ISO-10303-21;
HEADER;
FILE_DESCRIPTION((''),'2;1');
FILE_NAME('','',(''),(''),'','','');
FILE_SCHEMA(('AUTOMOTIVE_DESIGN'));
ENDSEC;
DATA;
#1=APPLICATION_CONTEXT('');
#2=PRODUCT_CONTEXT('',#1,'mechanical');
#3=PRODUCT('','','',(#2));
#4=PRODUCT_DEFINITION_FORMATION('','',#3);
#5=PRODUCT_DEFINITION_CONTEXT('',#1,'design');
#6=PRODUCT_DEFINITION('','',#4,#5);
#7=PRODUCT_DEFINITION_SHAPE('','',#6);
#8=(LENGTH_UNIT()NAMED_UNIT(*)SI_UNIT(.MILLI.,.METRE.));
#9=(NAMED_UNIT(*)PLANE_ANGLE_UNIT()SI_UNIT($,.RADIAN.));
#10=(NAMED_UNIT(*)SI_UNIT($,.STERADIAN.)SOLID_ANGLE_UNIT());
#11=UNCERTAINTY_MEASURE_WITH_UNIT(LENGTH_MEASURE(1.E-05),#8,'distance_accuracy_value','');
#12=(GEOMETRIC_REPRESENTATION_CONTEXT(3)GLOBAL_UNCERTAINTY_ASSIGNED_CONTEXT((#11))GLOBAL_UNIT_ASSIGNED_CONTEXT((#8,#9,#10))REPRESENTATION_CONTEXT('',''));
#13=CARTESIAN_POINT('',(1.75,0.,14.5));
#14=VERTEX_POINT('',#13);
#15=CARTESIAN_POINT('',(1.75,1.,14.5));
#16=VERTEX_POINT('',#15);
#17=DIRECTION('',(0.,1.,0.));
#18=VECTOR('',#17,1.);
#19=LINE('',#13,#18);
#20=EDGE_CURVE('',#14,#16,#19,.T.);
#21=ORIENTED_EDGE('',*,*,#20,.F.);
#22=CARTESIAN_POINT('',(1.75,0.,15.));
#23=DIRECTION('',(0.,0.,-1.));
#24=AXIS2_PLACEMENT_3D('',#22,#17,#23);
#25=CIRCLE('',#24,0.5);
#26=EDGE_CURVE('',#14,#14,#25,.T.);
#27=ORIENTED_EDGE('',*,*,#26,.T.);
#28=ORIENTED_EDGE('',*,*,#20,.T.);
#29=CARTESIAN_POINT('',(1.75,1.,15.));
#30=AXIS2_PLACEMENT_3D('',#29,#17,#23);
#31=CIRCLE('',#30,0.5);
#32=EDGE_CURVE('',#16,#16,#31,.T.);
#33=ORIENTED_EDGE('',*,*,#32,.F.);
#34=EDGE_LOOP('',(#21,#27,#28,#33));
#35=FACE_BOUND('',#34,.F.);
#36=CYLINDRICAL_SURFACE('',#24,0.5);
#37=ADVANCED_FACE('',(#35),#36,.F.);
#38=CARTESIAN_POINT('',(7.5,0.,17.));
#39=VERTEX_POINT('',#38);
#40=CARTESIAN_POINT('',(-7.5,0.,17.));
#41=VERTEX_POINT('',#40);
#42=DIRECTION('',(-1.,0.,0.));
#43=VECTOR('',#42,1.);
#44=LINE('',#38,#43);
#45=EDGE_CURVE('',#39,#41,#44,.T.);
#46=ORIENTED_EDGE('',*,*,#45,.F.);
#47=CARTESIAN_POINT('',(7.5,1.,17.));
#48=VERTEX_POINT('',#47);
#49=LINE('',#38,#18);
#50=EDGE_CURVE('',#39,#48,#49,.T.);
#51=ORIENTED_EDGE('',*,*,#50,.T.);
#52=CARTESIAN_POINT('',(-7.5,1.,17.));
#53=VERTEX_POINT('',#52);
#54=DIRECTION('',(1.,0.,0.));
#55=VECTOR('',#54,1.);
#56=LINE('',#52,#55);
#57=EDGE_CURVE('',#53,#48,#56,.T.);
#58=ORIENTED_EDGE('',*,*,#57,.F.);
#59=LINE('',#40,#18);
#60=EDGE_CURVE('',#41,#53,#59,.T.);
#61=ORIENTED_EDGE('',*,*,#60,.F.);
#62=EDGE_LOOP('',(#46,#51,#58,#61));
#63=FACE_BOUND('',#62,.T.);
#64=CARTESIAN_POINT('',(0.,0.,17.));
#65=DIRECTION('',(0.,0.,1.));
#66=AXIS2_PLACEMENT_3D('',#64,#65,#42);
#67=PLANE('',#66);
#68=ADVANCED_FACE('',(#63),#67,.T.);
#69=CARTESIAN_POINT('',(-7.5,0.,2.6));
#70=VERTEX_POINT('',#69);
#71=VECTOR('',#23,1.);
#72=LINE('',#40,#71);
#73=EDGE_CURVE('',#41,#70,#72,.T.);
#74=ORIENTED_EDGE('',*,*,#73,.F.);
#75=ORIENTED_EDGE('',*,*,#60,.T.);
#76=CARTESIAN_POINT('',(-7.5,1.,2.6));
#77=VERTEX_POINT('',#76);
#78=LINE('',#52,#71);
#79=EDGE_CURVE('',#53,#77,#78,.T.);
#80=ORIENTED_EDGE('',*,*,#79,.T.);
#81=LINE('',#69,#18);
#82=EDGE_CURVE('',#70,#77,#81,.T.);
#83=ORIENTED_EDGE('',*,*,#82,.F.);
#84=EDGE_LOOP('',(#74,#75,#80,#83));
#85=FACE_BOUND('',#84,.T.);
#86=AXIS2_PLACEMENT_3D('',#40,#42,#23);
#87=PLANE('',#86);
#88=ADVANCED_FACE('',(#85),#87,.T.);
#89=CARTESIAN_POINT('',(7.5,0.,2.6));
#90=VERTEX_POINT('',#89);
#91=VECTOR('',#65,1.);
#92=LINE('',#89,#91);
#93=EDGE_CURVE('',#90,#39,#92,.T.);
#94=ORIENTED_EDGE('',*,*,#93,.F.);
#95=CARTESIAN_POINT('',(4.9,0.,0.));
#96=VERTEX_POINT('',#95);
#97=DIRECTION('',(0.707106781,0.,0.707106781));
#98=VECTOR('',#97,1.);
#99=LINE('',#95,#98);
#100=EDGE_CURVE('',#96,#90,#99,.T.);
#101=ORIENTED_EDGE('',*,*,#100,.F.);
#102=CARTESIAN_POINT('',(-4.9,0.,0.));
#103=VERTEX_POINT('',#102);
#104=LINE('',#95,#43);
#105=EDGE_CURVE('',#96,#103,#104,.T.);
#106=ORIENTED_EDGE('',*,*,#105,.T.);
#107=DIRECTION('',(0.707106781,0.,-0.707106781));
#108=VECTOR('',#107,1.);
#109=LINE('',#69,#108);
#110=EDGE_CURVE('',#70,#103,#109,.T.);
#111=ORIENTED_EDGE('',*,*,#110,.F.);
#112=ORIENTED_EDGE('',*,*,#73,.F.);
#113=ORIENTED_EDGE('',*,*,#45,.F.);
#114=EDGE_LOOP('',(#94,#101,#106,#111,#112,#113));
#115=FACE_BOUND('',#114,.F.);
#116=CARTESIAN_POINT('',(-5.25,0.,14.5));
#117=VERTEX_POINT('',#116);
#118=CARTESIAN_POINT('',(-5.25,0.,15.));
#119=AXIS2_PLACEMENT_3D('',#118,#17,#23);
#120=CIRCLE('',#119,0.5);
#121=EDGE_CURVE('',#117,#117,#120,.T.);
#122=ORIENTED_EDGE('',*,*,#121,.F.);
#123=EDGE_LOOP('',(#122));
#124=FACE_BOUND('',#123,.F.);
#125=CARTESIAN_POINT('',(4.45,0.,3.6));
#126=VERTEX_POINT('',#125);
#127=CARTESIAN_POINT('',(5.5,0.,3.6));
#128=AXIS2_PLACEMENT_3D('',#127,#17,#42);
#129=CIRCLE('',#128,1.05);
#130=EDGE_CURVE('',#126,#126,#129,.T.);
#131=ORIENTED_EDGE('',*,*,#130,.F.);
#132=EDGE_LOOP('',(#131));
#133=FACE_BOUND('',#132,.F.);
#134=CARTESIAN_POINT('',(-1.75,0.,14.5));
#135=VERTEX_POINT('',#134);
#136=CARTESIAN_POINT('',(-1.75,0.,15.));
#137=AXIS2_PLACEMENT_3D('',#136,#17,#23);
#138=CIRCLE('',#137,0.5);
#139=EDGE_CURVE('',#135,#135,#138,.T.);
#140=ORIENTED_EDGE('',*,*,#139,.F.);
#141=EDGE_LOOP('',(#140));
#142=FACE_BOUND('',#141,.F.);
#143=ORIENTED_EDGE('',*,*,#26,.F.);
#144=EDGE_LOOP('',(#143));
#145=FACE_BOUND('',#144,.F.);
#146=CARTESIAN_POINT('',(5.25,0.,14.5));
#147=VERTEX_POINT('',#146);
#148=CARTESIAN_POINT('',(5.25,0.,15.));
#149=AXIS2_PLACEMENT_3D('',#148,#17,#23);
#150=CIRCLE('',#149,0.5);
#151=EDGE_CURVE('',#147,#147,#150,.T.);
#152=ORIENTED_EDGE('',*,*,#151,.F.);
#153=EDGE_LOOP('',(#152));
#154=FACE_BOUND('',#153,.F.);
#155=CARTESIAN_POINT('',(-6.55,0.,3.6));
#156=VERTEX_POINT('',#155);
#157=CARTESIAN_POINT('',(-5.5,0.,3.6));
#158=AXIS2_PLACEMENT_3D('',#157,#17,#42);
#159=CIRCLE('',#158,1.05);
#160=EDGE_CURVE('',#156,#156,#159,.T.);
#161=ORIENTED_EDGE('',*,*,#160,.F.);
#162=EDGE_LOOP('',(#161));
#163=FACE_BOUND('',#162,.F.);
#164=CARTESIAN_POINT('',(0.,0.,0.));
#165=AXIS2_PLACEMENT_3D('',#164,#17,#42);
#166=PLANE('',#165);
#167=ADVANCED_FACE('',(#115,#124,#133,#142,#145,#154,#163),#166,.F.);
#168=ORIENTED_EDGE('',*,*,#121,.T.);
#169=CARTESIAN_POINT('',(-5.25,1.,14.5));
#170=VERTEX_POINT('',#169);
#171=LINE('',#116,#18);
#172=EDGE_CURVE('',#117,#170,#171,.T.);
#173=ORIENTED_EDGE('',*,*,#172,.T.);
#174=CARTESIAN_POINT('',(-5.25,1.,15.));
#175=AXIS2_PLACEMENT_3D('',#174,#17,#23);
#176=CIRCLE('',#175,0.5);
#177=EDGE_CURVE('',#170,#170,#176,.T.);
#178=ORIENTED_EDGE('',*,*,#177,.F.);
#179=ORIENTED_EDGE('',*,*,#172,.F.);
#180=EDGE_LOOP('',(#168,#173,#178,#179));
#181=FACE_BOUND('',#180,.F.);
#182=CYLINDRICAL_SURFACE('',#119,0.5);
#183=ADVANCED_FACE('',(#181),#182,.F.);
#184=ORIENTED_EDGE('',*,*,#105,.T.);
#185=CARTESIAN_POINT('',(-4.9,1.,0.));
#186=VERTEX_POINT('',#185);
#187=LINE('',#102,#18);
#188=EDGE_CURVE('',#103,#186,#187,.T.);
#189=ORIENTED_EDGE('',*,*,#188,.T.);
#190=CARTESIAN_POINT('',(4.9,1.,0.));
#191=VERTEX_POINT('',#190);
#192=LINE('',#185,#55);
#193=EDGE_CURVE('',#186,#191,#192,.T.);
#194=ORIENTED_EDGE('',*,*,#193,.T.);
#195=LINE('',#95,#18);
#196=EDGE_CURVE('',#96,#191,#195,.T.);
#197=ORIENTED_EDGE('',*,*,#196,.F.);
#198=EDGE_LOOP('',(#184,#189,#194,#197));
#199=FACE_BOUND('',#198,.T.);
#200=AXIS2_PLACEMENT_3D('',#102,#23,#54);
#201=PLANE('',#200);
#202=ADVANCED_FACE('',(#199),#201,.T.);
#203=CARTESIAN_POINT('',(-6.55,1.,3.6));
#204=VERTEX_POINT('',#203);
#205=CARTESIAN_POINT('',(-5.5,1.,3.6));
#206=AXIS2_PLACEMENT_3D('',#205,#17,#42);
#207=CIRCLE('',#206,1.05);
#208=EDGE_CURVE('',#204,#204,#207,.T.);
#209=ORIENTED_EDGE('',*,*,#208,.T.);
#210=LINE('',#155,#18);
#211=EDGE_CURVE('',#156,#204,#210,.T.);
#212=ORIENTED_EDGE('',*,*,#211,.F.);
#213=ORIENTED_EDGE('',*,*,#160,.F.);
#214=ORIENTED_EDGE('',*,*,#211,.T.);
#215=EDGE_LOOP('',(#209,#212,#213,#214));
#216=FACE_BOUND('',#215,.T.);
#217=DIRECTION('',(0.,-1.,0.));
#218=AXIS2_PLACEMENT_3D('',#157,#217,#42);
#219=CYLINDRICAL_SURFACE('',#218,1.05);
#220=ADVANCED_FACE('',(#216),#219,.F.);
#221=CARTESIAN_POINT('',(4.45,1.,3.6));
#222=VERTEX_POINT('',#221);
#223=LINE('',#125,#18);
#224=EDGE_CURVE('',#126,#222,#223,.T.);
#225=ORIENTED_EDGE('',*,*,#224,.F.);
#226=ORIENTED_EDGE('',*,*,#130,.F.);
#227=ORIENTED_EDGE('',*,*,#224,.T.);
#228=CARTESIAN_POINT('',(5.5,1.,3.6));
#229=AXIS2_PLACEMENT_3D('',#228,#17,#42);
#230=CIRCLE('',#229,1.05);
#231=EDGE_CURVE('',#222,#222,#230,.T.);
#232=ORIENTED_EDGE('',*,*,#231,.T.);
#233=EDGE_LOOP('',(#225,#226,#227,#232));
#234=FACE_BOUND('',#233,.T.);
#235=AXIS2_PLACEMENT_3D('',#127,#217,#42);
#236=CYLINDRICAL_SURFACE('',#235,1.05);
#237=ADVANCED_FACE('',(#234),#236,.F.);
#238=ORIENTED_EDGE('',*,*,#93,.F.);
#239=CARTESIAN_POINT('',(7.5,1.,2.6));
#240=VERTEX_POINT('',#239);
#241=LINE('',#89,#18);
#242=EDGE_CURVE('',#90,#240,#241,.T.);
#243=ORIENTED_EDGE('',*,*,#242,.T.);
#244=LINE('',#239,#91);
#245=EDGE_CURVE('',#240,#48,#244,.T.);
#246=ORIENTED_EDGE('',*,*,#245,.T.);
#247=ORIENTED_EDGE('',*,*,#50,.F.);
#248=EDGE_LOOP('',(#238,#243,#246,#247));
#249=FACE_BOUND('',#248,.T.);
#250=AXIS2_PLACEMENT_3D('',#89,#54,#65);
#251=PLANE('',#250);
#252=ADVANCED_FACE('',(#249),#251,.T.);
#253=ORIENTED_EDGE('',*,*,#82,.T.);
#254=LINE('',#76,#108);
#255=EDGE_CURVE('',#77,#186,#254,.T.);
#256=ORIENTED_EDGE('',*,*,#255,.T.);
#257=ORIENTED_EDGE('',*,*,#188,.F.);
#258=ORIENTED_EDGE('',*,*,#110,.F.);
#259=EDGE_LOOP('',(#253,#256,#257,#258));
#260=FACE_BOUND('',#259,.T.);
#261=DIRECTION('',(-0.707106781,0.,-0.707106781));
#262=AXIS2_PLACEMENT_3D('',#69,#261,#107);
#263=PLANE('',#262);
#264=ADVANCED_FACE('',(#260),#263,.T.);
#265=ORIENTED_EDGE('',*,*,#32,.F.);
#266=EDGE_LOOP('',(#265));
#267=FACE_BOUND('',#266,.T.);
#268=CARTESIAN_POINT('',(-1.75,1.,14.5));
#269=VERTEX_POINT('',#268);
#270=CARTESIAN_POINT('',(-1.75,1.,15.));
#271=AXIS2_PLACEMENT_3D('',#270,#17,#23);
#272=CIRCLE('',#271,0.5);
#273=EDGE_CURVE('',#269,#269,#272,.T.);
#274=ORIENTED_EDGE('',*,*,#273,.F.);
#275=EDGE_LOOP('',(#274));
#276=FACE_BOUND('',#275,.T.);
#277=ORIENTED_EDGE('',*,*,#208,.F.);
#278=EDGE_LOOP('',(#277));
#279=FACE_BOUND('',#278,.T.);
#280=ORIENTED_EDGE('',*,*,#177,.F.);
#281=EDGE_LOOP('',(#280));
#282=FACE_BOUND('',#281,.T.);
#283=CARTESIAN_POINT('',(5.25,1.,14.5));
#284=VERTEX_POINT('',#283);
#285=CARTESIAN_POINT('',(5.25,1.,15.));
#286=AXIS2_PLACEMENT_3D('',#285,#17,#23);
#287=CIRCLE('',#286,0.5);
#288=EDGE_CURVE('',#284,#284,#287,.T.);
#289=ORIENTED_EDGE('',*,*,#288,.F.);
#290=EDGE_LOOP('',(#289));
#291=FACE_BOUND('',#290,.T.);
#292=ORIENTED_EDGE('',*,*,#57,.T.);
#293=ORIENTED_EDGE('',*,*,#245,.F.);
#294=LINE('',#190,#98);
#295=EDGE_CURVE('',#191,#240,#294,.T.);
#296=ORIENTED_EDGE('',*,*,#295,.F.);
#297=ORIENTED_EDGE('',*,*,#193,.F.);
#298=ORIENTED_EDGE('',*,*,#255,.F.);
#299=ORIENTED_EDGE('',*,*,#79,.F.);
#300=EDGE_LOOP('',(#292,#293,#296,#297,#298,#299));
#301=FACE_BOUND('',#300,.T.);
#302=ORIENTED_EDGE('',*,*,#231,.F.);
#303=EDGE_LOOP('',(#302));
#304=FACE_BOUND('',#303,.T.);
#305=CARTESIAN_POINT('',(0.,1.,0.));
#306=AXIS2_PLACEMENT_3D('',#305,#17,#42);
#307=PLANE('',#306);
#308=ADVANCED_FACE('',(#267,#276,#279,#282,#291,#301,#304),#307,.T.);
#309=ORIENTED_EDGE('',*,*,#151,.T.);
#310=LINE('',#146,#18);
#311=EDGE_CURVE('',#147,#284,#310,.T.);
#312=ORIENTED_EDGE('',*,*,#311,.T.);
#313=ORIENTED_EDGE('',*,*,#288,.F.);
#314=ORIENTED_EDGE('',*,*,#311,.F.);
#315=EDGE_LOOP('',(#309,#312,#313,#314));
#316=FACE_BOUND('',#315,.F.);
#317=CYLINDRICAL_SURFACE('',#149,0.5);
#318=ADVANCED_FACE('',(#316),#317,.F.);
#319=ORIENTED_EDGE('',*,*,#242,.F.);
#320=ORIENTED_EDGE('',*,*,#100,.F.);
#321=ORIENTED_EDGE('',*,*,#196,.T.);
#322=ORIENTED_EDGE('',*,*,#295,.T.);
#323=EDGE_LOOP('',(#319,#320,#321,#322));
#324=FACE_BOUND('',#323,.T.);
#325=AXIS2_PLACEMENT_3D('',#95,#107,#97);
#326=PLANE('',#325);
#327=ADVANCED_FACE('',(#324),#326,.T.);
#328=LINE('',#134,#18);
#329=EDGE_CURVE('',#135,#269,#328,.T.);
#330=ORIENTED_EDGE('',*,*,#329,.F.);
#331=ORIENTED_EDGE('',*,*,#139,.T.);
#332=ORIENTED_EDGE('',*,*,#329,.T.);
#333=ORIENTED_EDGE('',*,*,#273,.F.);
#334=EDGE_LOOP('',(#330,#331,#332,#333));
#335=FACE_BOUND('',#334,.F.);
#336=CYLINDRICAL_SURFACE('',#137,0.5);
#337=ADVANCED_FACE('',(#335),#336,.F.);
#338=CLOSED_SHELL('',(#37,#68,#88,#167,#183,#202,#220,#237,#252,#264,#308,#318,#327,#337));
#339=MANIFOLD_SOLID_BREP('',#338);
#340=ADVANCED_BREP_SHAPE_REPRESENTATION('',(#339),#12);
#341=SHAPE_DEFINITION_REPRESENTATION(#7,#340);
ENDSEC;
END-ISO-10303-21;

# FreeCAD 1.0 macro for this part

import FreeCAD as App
import Part
import Sketcher

V = App.Vector
Q = App.Units.Quantity

doc = App.newDocument("Part")
body = doc.addObject("PartDesign::Body", "Body")

# Sketch on XZ plane
sketch1 = body.newObject("Sketcher::SketchObject", "Sketch")
sketch1.AttachmentSupport = (doc.getObject("XZ_Plane"), [""])
sketch1.MapMode = "FlatFace"
sketch1.addGeometry([
    Part.LineSegment(V(-4.9, 0, 0), V(-7.5, 2.6, 0)),  # 0
    Part.LineSegment(V(-7.5, 2.6, 0), V(-7.5, 17, 0)),  # 1
    Part.LineSegment(V(-7.5, 17, 0), V(7.5, 17, 0)),  # 2
    Part.LineSegment(V(7.5, 17, 0), V(7.5, 2.6, 0)),  # 3
    Part.LineSegment(V(7.5, 2.6, 0), V(4.9, 0, 0)),  # 4
    Part.LineSegment(V(4.9, 0, 0), V(-4.9, 0, 0)),  # 5
    Part.Circle(V(-5.5, 3.6, 0), V(0, 0, 1), 1.05),  # 6
    Part.Circle(V(5.5, 3.6, 0), V(0, 0, 1), 1.05),  # 7
], False)
sketch1.addConstraint([
    Sketcher.Constraint("Coincident", 0, 2, 1, 1),
    Sketcher.Constraint("Coincident", 1, 2, 2, 1),
    Sketcher.Constraint("Coincident", 2, 2, 3, 1),
    Sketcher.Constraint("Coincident", 3, 2, 4, 1),
    Sketcher.Constraint("Coincident", 4, 2, 5, 1),
    Sketcher.Constraint("Coincident", 5, 2, 0, 1),
    Sketcher.Constraint("Vertical", 1),
    Sketcher.Constraint("Horizontal", 2),
    Sketcher.Constraint("Vertical", 3),
    Sketcher.Constraint("Horizontal", 5),
    Sketcher.Constraint("Equal", 6, 7),
    Sketcher.Constraint("Symmetric", 4, 2, 5, 2, -1, 1),
    Sketcher.Constraint("Symmetric", 6, 3, 7, 3, -2),
    Sketcher.Constraint("Symmetric", 0, 2, 3, 2, -2),
    Sketcher.Constraint("Perpendicular", 0, 4),
    Sketcher.Constraint("Diameter", 6, Q("2.1 mm")),
    Sketcher.Constraint("DistanceX", 2, 1, 2, 2, Q("15 mm")),
    Sketcher.Constraint("DistanceY", -1, 1, 1, 2, Q("17 mm")),
    Sketcher.Constraint("DistanceX", 6, 3, 7, 3, Q("11 mm")),
    Sketcher.Constraint("DistanceY", 0, 2, 6, 3, Q("1 mm")),
    Sketcher.Constraint("DistanceY", -1, 1, 0, 2, Q("2.6 mm")),
])
pad1 = body.newObject("PartDesign::Pad", "Pad")
pad1.Profile = sketch1
pad1.Length = 1
pad1.Reversed = True

# Sketch on XZ plane
sketch2 = body.newObject("Sketcher::SketchObject", "Sketch001")
sketch2.AttachmentSupport = (doc.getObject("XZ_Plane"), [""])
sketch2.MapMode = "FlatFace"
sketch2.addGeometry([
    Part.Circle(V(1.75, 15, 0), V(0, 0, 1), 0.5),
    Part.Circle(V(-1.75, 15, 0), V(0, 0, 1), 0.5),
    Part.Circle(V(-5.25, 15, 0), V(0, 0, 1), 0.5),
    Part.Circle(V(5.25, 15, 0), V(0, 0, 1), 0.5),
], False)
sketch2.addConstraint([
    Sketcher.Constraint("Equal", 0, 1),
    Sketcher.Constraint("Equal", 1, 2),
    Sketcher.Constraint("Equal", 2, 3),
    Sketcher.Constraint("Symmetric", 0, 3, 1, 3, -2),
    Sketcher.Constraint("Symmetric", 2, 3, 3, 3, -2),
    Sketcher.Constraint("Horizontal", 1, 3, 2, 3),
    Sketcher.Constraint("Diameter", 0, Q("1 mm")),
    Sketcher.Constraint("DistanceY", -1, 1, 0, 3, Q("15 mm")),
    Sketcher.Constraint("DistanceX", 2, 3, 0, 3, Q("7 mm")),
    Sketcher.Constraint("DistanceX", 1, 3, 0, 3, Q("3.5 mm")),
])
doc.recompute()
hole = body.newObject("PartDesign::Hole", "Hole")
hole.Profile = sketch2
hole.ThreadType = "None"
hole.Diameter = 1
hole.DepthType = "ThroughAll"

doc.recompute()
